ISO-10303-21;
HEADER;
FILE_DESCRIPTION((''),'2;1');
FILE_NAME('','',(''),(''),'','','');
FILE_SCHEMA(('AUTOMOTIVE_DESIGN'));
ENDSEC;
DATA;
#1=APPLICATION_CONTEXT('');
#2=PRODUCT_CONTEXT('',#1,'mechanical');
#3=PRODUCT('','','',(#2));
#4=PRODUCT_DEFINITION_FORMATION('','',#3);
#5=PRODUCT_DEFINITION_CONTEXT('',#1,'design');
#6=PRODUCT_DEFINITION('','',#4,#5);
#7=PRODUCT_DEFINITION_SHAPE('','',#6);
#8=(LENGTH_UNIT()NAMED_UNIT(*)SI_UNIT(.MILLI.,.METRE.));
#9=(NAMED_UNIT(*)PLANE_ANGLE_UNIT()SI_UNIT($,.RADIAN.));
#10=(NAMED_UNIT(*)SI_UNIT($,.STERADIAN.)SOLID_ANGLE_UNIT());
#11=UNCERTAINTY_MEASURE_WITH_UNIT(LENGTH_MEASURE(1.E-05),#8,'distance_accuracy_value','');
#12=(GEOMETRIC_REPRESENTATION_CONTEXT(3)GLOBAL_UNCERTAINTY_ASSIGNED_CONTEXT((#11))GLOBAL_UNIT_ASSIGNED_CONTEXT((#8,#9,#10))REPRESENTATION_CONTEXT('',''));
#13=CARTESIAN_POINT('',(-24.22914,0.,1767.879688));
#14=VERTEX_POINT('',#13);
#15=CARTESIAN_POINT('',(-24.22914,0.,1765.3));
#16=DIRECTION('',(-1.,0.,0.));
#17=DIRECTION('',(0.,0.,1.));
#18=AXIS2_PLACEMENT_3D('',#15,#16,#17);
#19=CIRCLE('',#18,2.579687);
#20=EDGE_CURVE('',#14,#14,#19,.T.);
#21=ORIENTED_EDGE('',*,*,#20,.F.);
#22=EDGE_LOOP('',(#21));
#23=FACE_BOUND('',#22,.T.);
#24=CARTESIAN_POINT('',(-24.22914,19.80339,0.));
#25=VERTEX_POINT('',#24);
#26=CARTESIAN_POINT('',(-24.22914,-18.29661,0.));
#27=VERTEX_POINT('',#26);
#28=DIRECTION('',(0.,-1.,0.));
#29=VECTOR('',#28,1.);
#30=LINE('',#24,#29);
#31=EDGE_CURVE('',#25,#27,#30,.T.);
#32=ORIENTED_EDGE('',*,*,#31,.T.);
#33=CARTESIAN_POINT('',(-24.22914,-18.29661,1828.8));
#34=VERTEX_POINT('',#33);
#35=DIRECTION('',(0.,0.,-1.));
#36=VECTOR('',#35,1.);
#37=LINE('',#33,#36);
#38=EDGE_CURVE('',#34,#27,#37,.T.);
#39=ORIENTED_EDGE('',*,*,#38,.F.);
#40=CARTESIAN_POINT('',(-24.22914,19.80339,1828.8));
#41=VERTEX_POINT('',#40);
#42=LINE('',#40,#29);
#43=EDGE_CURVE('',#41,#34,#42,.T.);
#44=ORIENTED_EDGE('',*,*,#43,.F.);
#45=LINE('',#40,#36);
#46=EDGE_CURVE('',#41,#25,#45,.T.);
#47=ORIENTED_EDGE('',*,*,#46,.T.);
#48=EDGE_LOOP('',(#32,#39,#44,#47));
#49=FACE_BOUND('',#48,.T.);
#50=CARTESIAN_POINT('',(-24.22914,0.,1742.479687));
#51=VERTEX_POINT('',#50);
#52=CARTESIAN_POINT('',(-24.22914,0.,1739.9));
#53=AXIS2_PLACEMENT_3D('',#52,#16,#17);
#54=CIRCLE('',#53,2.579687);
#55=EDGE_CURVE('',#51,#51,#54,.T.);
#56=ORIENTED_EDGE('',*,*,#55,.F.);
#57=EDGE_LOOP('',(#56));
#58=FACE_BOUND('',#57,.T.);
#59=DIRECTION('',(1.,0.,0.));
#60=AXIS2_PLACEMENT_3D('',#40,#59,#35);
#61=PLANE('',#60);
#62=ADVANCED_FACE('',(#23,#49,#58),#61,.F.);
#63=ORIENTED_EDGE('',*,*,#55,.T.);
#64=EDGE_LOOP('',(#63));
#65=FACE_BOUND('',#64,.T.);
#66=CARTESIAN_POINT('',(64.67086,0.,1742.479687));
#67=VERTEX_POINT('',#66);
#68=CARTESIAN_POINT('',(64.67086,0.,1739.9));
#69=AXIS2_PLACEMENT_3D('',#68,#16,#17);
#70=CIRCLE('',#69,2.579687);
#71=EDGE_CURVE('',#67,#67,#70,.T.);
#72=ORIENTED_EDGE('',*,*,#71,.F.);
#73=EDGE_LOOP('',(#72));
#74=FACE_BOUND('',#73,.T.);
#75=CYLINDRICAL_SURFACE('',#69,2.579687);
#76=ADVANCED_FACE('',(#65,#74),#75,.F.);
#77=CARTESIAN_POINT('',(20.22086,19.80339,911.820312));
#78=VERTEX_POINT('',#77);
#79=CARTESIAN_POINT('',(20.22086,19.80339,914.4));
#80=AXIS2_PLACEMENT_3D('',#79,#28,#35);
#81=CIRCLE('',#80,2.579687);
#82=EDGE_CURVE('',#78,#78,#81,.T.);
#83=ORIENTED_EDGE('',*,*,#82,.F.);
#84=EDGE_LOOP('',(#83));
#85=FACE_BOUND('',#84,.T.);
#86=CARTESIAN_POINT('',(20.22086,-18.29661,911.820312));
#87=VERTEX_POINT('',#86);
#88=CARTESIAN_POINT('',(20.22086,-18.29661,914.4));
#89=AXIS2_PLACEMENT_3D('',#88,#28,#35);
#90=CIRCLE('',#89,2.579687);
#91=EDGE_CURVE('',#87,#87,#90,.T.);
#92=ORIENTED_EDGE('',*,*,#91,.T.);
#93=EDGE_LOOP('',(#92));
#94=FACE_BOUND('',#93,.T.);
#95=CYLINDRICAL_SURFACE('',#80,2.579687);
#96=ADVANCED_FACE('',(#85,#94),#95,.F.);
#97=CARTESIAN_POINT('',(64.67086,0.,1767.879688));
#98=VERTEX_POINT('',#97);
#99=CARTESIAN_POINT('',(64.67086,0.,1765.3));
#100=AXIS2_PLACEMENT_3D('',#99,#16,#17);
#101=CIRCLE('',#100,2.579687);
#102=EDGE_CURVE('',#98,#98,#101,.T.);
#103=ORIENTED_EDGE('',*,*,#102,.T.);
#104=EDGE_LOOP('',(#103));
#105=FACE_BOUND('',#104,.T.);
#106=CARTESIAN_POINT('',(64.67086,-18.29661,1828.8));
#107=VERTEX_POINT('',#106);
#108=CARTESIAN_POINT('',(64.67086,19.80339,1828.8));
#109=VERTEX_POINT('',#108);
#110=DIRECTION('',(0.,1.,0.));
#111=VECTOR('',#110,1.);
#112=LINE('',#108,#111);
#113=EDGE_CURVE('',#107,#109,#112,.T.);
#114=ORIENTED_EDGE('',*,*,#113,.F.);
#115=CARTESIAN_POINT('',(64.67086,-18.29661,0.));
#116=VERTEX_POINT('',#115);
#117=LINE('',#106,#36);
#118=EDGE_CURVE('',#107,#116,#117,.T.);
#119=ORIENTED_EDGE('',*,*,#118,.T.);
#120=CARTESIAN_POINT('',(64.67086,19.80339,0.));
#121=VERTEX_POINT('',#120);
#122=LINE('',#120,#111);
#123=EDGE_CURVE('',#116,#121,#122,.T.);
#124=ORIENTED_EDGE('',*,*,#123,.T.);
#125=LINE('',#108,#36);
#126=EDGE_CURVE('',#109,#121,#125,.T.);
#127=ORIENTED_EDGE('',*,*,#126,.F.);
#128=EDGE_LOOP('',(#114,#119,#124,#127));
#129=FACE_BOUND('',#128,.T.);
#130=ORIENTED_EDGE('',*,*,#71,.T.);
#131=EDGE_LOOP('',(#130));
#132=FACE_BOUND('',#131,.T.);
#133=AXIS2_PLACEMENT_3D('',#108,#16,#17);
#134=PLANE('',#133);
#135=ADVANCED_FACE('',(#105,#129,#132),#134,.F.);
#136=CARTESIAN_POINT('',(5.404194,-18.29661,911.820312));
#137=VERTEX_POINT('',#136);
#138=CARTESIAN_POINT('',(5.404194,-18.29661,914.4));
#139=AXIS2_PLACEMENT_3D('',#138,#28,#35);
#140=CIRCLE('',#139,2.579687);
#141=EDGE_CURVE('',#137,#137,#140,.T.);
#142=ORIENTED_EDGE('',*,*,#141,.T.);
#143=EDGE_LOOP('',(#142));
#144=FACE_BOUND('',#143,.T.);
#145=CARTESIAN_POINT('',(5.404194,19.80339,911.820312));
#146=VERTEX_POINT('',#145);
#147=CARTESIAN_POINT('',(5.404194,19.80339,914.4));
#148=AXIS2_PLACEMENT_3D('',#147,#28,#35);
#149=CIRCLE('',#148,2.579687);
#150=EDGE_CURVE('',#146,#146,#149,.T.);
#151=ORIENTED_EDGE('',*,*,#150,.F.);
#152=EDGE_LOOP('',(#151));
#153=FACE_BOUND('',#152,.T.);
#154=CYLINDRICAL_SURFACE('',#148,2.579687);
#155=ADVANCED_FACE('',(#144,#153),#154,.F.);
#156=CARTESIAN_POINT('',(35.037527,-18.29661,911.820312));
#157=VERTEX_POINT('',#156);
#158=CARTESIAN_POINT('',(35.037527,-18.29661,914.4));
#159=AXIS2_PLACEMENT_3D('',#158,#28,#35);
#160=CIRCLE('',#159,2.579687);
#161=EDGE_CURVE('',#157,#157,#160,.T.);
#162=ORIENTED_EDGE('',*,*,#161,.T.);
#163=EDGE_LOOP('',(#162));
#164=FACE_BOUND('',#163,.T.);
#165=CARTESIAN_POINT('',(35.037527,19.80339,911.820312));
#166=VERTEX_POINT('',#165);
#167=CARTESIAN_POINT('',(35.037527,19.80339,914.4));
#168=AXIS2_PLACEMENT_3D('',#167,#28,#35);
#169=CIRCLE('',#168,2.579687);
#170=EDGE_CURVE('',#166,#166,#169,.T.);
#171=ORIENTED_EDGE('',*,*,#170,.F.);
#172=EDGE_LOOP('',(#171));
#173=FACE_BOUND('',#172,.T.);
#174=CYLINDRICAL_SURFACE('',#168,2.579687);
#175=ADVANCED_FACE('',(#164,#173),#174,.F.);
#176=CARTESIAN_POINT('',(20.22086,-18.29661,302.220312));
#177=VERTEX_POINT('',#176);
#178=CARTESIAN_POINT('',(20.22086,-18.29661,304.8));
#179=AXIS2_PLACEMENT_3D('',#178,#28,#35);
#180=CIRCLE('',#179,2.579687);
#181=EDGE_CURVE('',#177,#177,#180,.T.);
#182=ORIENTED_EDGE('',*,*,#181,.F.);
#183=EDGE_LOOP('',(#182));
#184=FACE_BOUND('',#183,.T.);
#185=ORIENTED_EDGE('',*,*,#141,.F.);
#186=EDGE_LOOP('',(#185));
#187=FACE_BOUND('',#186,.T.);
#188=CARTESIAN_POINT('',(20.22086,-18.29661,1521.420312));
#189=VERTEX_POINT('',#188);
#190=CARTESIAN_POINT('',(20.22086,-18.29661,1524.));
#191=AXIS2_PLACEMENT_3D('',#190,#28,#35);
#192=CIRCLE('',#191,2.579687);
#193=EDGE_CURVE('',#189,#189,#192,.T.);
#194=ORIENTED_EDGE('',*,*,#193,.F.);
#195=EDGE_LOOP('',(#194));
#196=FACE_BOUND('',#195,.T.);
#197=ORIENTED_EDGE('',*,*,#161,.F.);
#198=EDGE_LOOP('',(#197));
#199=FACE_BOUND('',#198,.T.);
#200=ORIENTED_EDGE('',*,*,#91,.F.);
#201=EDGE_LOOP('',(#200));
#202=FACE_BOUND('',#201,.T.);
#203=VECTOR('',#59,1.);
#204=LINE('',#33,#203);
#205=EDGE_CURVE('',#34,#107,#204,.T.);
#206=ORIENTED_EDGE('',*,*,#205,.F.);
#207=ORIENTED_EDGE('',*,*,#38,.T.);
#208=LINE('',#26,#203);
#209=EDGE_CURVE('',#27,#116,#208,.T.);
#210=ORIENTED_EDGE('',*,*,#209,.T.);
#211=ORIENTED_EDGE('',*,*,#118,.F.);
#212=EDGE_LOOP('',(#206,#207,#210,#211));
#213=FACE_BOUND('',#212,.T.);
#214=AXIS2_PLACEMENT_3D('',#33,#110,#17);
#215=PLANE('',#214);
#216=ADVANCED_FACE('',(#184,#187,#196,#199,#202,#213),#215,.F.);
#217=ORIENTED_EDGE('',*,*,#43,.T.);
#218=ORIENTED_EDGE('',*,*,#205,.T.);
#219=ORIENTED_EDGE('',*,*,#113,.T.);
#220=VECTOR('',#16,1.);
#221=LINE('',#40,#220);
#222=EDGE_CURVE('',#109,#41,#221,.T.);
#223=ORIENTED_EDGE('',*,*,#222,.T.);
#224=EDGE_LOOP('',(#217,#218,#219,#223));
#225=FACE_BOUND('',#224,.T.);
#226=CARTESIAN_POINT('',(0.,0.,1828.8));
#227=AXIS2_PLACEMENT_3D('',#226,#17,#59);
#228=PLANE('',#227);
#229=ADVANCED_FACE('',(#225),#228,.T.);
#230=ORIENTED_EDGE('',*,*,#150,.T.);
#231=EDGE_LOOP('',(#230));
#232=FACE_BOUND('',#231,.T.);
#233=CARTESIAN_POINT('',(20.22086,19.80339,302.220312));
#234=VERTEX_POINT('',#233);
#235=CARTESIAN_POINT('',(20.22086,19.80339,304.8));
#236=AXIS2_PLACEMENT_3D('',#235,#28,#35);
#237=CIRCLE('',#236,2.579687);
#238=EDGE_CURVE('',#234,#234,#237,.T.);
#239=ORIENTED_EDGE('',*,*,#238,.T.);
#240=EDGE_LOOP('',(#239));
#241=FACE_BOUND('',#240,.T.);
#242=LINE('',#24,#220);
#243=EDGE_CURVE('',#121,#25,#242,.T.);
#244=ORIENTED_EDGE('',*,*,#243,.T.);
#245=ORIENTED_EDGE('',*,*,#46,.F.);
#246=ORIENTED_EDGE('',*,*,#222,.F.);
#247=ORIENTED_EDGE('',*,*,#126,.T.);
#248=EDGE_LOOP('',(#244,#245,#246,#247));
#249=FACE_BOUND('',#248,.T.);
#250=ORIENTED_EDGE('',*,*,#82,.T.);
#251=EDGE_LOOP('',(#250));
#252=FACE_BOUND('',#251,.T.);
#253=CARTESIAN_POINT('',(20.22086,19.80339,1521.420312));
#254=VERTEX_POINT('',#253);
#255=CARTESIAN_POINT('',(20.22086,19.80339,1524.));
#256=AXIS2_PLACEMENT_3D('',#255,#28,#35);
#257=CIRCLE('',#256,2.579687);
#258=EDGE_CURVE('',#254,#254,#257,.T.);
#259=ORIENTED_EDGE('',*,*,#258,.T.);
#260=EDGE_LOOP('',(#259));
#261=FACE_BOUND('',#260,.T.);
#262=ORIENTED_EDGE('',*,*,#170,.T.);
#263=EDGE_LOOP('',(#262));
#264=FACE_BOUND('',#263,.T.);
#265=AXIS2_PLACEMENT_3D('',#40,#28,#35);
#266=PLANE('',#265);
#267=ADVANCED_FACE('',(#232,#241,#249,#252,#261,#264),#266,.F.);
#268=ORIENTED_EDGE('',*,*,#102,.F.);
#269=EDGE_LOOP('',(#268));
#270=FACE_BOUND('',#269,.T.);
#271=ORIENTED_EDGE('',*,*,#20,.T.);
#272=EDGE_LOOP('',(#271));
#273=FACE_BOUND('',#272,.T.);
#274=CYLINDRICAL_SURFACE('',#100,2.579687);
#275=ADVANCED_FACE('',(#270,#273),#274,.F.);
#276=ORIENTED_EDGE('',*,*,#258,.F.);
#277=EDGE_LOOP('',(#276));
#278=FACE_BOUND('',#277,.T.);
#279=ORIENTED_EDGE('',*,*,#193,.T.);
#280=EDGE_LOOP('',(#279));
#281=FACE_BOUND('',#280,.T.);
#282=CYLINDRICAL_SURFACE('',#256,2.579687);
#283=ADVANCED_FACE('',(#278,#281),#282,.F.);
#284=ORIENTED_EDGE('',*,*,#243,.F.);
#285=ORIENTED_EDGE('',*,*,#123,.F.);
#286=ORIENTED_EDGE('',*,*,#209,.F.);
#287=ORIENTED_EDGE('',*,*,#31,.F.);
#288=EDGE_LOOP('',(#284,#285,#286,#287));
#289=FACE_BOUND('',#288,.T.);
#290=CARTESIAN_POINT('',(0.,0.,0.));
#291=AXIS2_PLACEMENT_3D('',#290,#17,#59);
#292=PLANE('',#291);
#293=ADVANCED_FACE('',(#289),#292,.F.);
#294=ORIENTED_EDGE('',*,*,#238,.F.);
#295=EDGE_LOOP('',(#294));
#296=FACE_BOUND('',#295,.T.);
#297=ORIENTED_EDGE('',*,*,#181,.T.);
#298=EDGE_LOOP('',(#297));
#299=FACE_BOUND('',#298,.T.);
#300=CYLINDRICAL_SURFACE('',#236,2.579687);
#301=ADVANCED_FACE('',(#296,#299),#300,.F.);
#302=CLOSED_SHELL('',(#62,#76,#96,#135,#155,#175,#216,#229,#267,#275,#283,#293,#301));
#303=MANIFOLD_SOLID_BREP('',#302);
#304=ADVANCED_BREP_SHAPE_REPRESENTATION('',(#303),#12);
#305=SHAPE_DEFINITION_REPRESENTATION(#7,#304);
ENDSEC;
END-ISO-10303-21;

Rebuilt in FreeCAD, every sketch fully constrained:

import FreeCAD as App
import Part
import Sketcher

V = App.Vector
Q = App.Units.Quantity

doc = App.newDocument("Part")
body = doc.addObject("PartDesign::Body", "Body")

# Sketch on XY plane
sketch1 = body.newObject("Sketcher::SketchObject", "Sketch")
sketch1.AttachmentSupport = (doc.getObject("XY_Plane"), [""])
sketch1.MapMode = "FlatFace"
sketch1.addGeometry([
    Part.LineSegment(V(-24.22914, 19.80339, 0), V(-24.22914, -18.29661, 0)),
    Part.LineSegment(V(-24.22914, -18.29661, 0), V(64.67086, -18.29661, 0)),
    Part.LineSegment(V(64.67086, -18.29661, 0), V(64.67086, 19.80339, 0)),
    Part.LineSegment(V(64.67086, 19.80339, 0), V(-24.22914, 19.80339, 0)),
], False)
sketch1.addConstraint([
    Sketcher.Constraint("Coincident", 0, 2, 1, 1),
    Sketcher.Constraint("Coincident", 1, 2, 2, 1),
    Sketcher.Constraint("Coincident", 2, 2, 3, 1),
    Sketcher.Constraint("Coincident", 3, 2, 0, 1),
    Sketcher.Constraint("Vertical", 0),
    Sketcher.Constraint("Horizontal", 1),
    Sketcher.Constraint("Vertical", 2),
    Sketcher.Constraint("Horizontal", 3),
    Sketcher.Constraint("DistanceX", 1, 1, 1, 2, Q("3.5 in")),
    Sketcher.Constraint("DistanceY", 0, 2, 0, 1, Q("1.5 in")),
    Sketcher.Constraint("DistanceX", 0, 2, -1, 1, Q("24.22914 mm")),
    Sketcher.Constraint("DistanceY", 0, 2, -1, 1, Q("18.29661 mm")),
])
pad1 = body.newObject("PartDesign::Pad", "Pad")
pad1.Profile = sketch1
pad1.Length = Q("72 in")

# Sketch on YZ plane
sketch2 = body.newObject("Sketcher::SketchObject", "Sketch001")
sketch2.AttachmentSupport = (doc.getObject("YZ_Plane"), [""])
sketch2.MapMode = "FlatFace"
sketch2.AttachmentOffset = App.Placement(V(0, 0, -24.22914), App.Rotation())
sketch2.addGeometry([
    Part.Circle(V(0, 1739.9, 0), V(0, 0, 1), 2.579687),
    Part.Circle(V(0, 1765.3, 0), V(0, 0, 1), 2.579687),
], False)
sketch2.addConstraint([
    Sketcher.Constraint("Equal", 0, 1),
    Sketcher.Constraint("PointOnObject", 0, 3, -2),
    Sketcher.Constraint("PointOnObject", 1, 3, -2),
    Sketcher.Constraint("Diameter", 0, Q("0.203125 in")),
    Sketcher.Constraint("DistanceY", 0, 3, 1, 3, Q("1 in")),
    Sketcher.Constraint("DistanceY", -1, 1, 0, 3, Q("68.5 in")),
])
pocket1 = body.newObject("PartDesign::Pocket", "Pocket")
pocket1.Profile = sketch2
pocket1.Type = "ThroughAll"
pocket1.Reversed = True

# Sketch on XZ plane
sketch3 = body.newObject("Sketcher::SketchObject", "Sketch002")
sketch3.AttachmentSupport = (doc.getObject("XZ_Plane"), [""])
sketch3.MapMode = "FlatFace"
sketch3.AttachmentOffset = App.Placement(V(0, 0, 18.29661), App.Rotation())
sketch3.addGeometry([
    Part.Circle(V(35.037527, 914.4, 0), V(0, 0, 1), 2.579687),
    Part.Circle(V(5.404194, 914.4, 0), V(0, 0, 1), 2.579687),
], False)
sketch3.addConstraint([
    Sketcher.Constraint("Equal", 0, 1),
    Sketcher.Constraint("Horizontal", 0, 3, 1, 3),
    Sketcher.Constraint("Diameter", 0, Q("0.203125 in")),
    Sketcher.Constraint("DistanceY", -1, 1, 0, 3, Q("36 in")),
    Sketcher.Constraint("DistanceX", -1, 1, 0, 3, Q("35.037527 mm")),
    Sketcher.Constraint("DistanceX", -1, 1, 1, 3, Q("5.404194 mm")),
])
pocket2 = body.newObject("PartDesign::Pocket", "Pocket001")
pocket2.Profile = sketch3
pocket2.Type = "ThroughAll"

# Sketch on XZ plane
sketch4 = body.newObject("Sketcher::SketchObject", "Sketch003")
sketch4.AttachmentSupport = (doc.getObject("XZ_Plane"), [""])
sketch4.MapMode = "FlatFace"
sketch4.AttachmentOffset = App.Placement(V(0, 0, 18.29661), App.Rotation())
sketch4.addGeometry([
    Part.Circle(V(20.22086, 1524, 0), V(0, 0, 1), 2.579687),
    Part.Circle(V(20.22086, 914.4, 0), V(0, 0, 1), 2.579687),
    Part.Circle(V(20.22086, 304.8, 0), V(0, 0, 1), 2.579687),
], False)
sketch4.addConstraint([
    Sketcher.Constraint("Equal", 0, 1),
    Sketcher.Constraint("Equal", 1, 2),
    Sketcher.Constraint("Vertical", 0, 3, 1, 3),
    Sketcher.Constraint("Vertical", 1, 3, 2, 3),
    Sketcher.Constraint("Diameter", 0, Q("0.203125 in")),
    Sketcher.Constraint("DistanceY", -1, 1, 0, 3, Q("60 in")),
    Sketcher.Constraint("DistanceY", -1, 1, 1, 3, Q("36 in")),
    Sketcher.Constraint("DistanceY", -1, 1, 2, 3, Q("12 in")),
    Sketcher.Constraint("DistanceX", -1, 1, 0, 3, Q("20.22086 mm")),
])
pocket3 = body.newObject("PartDesign::Pocket", "Pocket002")
pocket3.Profile = sketch4
pocket3.Type = "ThroughAll"

doc.recompute()
